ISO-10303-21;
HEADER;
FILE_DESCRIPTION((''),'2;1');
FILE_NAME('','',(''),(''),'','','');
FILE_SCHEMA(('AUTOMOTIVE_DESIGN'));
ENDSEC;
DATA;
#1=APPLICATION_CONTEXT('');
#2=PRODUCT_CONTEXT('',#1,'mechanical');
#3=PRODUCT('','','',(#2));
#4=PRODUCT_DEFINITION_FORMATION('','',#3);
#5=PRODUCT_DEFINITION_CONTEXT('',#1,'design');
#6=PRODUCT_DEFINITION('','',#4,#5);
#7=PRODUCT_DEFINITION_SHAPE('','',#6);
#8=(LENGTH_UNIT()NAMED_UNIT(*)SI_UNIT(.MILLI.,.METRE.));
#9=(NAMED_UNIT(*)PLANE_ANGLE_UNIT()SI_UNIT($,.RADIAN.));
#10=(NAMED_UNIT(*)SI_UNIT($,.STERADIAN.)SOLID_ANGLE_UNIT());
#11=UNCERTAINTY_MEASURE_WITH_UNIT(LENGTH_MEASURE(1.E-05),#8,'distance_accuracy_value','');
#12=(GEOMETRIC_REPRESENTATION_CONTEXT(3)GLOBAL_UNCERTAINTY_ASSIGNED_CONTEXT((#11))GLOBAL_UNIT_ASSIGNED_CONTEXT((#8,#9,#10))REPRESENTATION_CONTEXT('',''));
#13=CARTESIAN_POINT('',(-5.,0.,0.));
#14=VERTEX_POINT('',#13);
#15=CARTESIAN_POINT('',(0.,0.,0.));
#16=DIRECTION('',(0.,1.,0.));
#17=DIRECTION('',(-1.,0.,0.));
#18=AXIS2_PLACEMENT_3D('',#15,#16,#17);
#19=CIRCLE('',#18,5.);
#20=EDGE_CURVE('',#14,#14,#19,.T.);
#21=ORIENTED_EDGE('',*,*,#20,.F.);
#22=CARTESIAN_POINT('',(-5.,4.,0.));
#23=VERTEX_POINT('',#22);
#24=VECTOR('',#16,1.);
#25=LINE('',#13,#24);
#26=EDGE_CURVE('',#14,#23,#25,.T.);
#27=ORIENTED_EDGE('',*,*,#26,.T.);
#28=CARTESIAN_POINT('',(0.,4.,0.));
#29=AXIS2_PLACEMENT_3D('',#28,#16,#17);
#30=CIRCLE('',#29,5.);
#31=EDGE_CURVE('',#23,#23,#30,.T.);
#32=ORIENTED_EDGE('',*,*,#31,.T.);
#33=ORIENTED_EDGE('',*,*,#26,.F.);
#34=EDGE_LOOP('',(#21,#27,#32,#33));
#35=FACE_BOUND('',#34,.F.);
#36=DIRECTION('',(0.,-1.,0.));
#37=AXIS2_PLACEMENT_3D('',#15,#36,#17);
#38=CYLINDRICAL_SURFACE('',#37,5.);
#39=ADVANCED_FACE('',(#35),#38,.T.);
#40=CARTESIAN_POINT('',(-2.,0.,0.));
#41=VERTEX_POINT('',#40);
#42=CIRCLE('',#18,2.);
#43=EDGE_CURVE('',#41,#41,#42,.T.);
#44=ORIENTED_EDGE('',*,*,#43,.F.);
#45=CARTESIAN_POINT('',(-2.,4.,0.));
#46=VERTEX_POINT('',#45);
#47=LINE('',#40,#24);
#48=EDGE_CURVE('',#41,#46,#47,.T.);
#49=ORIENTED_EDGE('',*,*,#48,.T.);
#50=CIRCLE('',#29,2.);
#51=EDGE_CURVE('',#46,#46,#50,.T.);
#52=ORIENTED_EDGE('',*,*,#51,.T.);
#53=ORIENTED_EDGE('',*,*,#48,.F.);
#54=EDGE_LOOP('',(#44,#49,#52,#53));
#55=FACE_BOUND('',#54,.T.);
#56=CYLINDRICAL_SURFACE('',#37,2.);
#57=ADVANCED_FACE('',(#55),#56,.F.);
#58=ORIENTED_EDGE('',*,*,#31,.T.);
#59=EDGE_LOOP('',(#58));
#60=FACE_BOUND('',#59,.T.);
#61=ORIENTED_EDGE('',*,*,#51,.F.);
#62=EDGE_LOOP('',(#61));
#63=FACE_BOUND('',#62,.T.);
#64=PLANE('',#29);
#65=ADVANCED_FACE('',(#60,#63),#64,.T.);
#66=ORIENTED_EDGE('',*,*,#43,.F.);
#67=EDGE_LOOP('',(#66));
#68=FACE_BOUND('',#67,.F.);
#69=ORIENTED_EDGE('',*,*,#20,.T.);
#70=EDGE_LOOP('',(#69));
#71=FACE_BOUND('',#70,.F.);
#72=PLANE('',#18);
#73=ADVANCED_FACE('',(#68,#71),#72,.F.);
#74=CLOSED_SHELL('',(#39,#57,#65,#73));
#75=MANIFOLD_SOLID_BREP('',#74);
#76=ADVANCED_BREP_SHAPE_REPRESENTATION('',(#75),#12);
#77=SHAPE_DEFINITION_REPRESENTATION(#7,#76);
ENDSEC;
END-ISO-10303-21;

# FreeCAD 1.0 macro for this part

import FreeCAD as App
import Part
import Sketcher
from FreeCAD import Vector
Q = App.Units.Quantity

doc = App.newDocument("Part")
body = doc.addObject("PartDesign::Body", "Body")

# Sketch on XZ plane
sketch1 = body.newObject("Sketcher::SketchObject", "Sketch")
sketch1.AttachmentSupport = (doc.getObject("XZ_Plane"), [""])
sketch1.MapMode = "FlatFace"
sketch1.addGeometry([
    Part.Circle(Vector(0, 0, 0), Vector(0, 0, 1), 5),
    Part.Circle(Vector(0, 0, 0), Vector(0, 0, 1), 2),
], False)
sketch1.addConstraint([
    Sketcher.Constraint("Coincident", 0, 3, -1, 1),
    Sketcher.Constraint("Coincident", 1, 3, -1, 1),
    Sketcher.Constraint("Diameter", 0, Q("10 mm")),
    Sketcher.Constraint("Diameter", 1, Q("4 mm")),
])
pad1 = body.newObject("PartDesign::Pad", "Pad")
pad1.Profile = sketch1
pad1.Length = 4
pad1.Reversed = True

doc.recompute()
